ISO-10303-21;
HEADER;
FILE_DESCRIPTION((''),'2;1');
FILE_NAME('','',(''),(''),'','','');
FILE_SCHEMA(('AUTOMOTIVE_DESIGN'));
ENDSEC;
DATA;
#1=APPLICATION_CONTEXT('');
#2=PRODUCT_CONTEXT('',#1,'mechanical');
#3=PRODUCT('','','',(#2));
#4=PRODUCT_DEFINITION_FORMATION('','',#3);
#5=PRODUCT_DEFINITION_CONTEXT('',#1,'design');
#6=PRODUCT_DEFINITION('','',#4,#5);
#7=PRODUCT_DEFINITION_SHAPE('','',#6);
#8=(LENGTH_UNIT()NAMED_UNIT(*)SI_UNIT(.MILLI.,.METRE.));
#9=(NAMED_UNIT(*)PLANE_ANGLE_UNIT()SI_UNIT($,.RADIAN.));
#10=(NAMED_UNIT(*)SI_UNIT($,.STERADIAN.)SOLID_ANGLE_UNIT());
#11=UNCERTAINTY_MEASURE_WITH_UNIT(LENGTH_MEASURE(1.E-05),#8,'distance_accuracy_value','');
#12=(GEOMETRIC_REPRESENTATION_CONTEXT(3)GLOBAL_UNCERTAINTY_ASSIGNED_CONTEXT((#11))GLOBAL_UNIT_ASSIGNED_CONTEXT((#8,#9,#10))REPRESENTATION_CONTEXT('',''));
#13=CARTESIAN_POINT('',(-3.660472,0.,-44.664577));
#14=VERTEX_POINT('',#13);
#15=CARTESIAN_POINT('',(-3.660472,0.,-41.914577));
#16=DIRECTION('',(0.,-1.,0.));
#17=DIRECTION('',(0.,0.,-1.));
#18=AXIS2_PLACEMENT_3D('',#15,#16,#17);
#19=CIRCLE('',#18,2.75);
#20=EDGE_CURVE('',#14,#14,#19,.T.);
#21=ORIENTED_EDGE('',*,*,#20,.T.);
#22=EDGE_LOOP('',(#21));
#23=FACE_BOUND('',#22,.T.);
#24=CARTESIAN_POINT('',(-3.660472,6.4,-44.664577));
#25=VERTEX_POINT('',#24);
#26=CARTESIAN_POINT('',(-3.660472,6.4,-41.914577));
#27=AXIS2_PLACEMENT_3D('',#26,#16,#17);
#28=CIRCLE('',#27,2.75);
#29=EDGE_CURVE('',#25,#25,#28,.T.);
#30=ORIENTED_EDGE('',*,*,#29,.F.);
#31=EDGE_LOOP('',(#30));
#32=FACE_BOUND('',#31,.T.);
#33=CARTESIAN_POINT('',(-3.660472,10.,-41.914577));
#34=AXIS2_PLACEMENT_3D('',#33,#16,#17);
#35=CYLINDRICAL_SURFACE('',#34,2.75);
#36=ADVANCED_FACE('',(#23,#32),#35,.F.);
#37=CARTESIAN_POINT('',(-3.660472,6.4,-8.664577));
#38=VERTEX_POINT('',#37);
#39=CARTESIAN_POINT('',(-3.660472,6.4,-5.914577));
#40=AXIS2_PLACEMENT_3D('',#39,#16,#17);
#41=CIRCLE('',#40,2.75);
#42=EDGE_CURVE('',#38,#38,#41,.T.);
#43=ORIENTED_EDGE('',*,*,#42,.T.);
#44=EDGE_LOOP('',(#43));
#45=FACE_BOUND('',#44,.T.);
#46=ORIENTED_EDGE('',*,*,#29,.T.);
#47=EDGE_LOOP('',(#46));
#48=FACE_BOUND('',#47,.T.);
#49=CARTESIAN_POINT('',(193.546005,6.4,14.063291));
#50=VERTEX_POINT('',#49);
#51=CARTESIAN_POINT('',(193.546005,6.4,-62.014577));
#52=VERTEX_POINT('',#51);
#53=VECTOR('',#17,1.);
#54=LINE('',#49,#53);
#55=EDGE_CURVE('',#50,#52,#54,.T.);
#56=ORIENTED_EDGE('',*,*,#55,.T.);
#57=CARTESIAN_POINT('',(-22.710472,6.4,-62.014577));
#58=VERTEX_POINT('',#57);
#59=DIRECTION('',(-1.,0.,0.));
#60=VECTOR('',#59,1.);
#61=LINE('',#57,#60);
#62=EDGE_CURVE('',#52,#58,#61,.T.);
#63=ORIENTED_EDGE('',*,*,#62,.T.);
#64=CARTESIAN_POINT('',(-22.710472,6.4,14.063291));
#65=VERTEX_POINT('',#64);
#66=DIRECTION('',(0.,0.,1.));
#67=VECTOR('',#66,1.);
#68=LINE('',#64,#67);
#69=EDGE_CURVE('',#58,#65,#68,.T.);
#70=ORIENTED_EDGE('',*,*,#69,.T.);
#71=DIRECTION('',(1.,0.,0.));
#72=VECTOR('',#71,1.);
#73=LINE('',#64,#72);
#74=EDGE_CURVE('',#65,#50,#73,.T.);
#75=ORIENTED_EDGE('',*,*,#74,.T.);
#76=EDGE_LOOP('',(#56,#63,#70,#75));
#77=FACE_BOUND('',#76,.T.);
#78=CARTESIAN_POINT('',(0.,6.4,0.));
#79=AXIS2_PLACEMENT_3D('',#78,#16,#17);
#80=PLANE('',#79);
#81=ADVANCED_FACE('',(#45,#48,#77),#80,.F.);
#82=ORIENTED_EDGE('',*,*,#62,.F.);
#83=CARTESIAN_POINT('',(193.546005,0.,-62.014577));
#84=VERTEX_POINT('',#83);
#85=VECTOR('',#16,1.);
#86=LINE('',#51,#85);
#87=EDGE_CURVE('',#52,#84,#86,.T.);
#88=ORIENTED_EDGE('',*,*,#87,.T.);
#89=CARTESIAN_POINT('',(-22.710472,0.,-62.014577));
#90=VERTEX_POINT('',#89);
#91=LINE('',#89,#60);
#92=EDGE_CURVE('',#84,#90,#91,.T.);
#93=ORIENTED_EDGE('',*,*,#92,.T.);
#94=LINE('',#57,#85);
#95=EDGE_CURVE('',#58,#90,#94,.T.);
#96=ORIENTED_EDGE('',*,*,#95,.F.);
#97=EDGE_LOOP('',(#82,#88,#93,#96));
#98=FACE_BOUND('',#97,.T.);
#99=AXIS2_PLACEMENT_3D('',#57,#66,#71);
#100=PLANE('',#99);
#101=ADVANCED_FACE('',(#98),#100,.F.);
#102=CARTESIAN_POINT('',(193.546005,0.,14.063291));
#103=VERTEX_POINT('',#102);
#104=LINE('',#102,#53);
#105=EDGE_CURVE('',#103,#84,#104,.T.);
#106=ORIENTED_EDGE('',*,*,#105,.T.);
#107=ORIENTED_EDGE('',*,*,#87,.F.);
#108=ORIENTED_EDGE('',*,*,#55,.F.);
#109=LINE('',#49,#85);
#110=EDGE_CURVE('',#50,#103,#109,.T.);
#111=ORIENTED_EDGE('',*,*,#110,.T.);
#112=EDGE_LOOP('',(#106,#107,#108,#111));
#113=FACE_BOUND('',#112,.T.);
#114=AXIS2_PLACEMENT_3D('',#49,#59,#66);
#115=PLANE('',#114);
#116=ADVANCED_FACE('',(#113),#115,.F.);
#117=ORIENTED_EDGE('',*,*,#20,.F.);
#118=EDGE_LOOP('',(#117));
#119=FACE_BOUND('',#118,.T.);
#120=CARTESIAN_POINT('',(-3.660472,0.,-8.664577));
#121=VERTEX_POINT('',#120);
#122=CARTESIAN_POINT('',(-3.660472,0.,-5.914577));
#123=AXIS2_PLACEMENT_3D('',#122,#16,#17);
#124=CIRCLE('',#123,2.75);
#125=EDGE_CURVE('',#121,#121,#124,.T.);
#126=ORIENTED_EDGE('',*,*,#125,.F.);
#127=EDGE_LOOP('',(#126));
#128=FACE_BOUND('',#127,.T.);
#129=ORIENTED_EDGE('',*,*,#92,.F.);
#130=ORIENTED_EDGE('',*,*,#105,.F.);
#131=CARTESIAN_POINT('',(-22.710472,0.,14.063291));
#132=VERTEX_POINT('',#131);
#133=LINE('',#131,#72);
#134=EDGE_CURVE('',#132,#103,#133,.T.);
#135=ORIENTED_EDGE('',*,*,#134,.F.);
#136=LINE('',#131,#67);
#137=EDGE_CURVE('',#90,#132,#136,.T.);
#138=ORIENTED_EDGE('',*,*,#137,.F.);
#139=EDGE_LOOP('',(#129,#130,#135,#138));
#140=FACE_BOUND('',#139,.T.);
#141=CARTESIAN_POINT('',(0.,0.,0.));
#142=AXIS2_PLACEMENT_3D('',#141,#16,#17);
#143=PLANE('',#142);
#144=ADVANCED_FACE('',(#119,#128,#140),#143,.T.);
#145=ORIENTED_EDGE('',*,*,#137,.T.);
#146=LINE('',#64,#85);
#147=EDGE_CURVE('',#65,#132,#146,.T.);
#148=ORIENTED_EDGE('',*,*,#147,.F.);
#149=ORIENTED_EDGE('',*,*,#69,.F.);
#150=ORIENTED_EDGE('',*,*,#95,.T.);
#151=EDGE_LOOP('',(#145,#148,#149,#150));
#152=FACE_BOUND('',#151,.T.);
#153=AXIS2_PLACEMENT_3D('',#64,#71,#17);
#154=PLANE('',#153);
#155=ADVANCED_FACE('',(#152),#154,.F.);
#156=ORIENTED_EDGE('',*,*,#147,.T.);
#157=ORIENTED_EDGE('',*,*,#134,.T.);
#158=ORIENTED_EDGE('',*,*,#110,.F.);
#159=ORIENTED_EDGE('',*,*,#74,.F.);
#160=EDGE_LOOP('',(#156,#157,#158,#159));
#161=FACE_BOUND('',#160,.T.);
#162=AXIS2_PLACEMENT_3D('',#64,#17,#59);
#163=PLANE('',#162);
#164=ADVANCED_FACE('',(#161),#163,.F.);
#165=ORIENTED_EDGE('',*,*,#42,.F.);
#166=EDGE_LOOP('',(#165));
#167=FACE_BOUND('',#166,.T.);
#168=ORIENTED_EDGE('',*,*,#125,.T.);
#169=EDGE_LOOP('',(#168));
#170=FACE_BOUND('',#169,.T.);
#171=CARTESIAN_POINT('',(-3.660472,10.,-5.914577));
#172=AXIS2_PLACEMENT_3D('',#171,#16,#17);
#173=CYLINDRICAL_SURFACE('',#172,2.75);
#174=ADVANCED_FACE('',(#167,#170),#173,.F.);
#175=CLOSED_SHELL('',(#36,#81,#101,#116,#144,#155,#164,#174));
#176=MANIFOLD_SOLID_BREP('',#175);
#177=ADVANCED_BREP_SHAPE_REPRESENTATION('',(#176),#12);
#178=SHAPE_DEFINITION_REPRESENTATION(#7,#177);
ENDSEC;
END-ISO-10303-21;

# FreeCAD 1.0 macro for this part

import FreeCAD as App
import Part
import Sketcher
from FreeCAD import Vector
Q = App.Units.Quantity


def add_polygon(sketch, points):
    """Adds a closed chain of lines whose ends are joined by coincident constraints."""
    first, n = sketch.GeometryCount, len(points)
    for a, b in zip(points, points[1:] + points[:1]):
        sketch.addGeometry(Part.LineSegment(App.Vector(*a, 0), App.Vector(*b, 0)), False)
    for i in range(n):
        sketch.addConstraint(Sketcher.Constraint("Coincident", first + i, 2, first + (i + 1) % n, 1))

doc = App.newDocument("Part")
body = doc.addObject("PartDesign::Body", "Body")

sketch1 = doc.addObject("Sketcher::SketchObject", "Sketch")
body.addObject(sketch1)
sketch1.AttachmentSupport = (doc.XZ_Plane, [""])
sketch1.MapMode = "FlatFace"
add_polygon(sketch1, [(-23, -62), (-23, 14), (194, 14), (194, -62)])
sketch1.addConstraint([
    Sketcher.Constraint("Vertical", 0),
    Sketcher.Constraint("Horizontal", 1),
    Sketcher.Constraint("Vertical", 2),
    Sketcher.Constraint("Horizontal", 3),
    Sketcher.Constraint("DistanceY", 0, 1, 0, 2, Q("76.077868 mm")),
    Sketcher.Constraint("DistanceX", 1, 1, 1, 2, Q("216.256478 mm")),
    Sketcher.Constraint("DistanceY", -1, 1, 0, 2, Q("14.063291 mm")),
    Sketcher.Constraint("DistanceX", 0, 2, -1, 1, Q("22.710472 mm")),
])
pad1 = doc.addObject("PartDesign::Pad", "Pad")
body.addObject(pad1)
pad1.Profile = sketch1
pad1.Length = 6.4
pad1.Reversed = True

sketch2 = doc.addObject("Sketcher::SketchObject", "Sketch001")
body.addObject(sketch2)
sketch2.AttachmentSupport = (doc.XZ_Plane, [""])
sketch2.MapMode = "FlatFace"
sketch2.addGeometry([
    Part.Circle(Vector(-3.7, -5.9, 0), Vector(0, 0, 1), 2.8),
    Part.Circle(Vector(-3.7, -41.9, 0), Vector(0, 0, 1), 2.8),
], False)
sketch2.addConstraint([
    Sketcher.Constraint("Equal", 0, 1),
    Sketcher.Constraint("Vertical", 0, 3, 1, 3),
    Sketcher.Constraint("Diameter", 0, Q("5.5 mm")),
    Sketcher.Constraint("DistanceY", 1, 3, 0, 3, Q("36 mm")),
    Sketcher.Constraint("DistanceX", 0, 3, -1, 1, Q("3.660472 mm")),
    Sketcher.Constraint("DistanceY", 0, 3, -1, 1, Q("5.914577 mm")),
])
pocket1 = doc.addObject("PartDesign::Pocket", "Pocket")
body.addObject(pocket1)
pocket1.Profile = sketch2
pocket1.Length = 10

doc.recompute()
